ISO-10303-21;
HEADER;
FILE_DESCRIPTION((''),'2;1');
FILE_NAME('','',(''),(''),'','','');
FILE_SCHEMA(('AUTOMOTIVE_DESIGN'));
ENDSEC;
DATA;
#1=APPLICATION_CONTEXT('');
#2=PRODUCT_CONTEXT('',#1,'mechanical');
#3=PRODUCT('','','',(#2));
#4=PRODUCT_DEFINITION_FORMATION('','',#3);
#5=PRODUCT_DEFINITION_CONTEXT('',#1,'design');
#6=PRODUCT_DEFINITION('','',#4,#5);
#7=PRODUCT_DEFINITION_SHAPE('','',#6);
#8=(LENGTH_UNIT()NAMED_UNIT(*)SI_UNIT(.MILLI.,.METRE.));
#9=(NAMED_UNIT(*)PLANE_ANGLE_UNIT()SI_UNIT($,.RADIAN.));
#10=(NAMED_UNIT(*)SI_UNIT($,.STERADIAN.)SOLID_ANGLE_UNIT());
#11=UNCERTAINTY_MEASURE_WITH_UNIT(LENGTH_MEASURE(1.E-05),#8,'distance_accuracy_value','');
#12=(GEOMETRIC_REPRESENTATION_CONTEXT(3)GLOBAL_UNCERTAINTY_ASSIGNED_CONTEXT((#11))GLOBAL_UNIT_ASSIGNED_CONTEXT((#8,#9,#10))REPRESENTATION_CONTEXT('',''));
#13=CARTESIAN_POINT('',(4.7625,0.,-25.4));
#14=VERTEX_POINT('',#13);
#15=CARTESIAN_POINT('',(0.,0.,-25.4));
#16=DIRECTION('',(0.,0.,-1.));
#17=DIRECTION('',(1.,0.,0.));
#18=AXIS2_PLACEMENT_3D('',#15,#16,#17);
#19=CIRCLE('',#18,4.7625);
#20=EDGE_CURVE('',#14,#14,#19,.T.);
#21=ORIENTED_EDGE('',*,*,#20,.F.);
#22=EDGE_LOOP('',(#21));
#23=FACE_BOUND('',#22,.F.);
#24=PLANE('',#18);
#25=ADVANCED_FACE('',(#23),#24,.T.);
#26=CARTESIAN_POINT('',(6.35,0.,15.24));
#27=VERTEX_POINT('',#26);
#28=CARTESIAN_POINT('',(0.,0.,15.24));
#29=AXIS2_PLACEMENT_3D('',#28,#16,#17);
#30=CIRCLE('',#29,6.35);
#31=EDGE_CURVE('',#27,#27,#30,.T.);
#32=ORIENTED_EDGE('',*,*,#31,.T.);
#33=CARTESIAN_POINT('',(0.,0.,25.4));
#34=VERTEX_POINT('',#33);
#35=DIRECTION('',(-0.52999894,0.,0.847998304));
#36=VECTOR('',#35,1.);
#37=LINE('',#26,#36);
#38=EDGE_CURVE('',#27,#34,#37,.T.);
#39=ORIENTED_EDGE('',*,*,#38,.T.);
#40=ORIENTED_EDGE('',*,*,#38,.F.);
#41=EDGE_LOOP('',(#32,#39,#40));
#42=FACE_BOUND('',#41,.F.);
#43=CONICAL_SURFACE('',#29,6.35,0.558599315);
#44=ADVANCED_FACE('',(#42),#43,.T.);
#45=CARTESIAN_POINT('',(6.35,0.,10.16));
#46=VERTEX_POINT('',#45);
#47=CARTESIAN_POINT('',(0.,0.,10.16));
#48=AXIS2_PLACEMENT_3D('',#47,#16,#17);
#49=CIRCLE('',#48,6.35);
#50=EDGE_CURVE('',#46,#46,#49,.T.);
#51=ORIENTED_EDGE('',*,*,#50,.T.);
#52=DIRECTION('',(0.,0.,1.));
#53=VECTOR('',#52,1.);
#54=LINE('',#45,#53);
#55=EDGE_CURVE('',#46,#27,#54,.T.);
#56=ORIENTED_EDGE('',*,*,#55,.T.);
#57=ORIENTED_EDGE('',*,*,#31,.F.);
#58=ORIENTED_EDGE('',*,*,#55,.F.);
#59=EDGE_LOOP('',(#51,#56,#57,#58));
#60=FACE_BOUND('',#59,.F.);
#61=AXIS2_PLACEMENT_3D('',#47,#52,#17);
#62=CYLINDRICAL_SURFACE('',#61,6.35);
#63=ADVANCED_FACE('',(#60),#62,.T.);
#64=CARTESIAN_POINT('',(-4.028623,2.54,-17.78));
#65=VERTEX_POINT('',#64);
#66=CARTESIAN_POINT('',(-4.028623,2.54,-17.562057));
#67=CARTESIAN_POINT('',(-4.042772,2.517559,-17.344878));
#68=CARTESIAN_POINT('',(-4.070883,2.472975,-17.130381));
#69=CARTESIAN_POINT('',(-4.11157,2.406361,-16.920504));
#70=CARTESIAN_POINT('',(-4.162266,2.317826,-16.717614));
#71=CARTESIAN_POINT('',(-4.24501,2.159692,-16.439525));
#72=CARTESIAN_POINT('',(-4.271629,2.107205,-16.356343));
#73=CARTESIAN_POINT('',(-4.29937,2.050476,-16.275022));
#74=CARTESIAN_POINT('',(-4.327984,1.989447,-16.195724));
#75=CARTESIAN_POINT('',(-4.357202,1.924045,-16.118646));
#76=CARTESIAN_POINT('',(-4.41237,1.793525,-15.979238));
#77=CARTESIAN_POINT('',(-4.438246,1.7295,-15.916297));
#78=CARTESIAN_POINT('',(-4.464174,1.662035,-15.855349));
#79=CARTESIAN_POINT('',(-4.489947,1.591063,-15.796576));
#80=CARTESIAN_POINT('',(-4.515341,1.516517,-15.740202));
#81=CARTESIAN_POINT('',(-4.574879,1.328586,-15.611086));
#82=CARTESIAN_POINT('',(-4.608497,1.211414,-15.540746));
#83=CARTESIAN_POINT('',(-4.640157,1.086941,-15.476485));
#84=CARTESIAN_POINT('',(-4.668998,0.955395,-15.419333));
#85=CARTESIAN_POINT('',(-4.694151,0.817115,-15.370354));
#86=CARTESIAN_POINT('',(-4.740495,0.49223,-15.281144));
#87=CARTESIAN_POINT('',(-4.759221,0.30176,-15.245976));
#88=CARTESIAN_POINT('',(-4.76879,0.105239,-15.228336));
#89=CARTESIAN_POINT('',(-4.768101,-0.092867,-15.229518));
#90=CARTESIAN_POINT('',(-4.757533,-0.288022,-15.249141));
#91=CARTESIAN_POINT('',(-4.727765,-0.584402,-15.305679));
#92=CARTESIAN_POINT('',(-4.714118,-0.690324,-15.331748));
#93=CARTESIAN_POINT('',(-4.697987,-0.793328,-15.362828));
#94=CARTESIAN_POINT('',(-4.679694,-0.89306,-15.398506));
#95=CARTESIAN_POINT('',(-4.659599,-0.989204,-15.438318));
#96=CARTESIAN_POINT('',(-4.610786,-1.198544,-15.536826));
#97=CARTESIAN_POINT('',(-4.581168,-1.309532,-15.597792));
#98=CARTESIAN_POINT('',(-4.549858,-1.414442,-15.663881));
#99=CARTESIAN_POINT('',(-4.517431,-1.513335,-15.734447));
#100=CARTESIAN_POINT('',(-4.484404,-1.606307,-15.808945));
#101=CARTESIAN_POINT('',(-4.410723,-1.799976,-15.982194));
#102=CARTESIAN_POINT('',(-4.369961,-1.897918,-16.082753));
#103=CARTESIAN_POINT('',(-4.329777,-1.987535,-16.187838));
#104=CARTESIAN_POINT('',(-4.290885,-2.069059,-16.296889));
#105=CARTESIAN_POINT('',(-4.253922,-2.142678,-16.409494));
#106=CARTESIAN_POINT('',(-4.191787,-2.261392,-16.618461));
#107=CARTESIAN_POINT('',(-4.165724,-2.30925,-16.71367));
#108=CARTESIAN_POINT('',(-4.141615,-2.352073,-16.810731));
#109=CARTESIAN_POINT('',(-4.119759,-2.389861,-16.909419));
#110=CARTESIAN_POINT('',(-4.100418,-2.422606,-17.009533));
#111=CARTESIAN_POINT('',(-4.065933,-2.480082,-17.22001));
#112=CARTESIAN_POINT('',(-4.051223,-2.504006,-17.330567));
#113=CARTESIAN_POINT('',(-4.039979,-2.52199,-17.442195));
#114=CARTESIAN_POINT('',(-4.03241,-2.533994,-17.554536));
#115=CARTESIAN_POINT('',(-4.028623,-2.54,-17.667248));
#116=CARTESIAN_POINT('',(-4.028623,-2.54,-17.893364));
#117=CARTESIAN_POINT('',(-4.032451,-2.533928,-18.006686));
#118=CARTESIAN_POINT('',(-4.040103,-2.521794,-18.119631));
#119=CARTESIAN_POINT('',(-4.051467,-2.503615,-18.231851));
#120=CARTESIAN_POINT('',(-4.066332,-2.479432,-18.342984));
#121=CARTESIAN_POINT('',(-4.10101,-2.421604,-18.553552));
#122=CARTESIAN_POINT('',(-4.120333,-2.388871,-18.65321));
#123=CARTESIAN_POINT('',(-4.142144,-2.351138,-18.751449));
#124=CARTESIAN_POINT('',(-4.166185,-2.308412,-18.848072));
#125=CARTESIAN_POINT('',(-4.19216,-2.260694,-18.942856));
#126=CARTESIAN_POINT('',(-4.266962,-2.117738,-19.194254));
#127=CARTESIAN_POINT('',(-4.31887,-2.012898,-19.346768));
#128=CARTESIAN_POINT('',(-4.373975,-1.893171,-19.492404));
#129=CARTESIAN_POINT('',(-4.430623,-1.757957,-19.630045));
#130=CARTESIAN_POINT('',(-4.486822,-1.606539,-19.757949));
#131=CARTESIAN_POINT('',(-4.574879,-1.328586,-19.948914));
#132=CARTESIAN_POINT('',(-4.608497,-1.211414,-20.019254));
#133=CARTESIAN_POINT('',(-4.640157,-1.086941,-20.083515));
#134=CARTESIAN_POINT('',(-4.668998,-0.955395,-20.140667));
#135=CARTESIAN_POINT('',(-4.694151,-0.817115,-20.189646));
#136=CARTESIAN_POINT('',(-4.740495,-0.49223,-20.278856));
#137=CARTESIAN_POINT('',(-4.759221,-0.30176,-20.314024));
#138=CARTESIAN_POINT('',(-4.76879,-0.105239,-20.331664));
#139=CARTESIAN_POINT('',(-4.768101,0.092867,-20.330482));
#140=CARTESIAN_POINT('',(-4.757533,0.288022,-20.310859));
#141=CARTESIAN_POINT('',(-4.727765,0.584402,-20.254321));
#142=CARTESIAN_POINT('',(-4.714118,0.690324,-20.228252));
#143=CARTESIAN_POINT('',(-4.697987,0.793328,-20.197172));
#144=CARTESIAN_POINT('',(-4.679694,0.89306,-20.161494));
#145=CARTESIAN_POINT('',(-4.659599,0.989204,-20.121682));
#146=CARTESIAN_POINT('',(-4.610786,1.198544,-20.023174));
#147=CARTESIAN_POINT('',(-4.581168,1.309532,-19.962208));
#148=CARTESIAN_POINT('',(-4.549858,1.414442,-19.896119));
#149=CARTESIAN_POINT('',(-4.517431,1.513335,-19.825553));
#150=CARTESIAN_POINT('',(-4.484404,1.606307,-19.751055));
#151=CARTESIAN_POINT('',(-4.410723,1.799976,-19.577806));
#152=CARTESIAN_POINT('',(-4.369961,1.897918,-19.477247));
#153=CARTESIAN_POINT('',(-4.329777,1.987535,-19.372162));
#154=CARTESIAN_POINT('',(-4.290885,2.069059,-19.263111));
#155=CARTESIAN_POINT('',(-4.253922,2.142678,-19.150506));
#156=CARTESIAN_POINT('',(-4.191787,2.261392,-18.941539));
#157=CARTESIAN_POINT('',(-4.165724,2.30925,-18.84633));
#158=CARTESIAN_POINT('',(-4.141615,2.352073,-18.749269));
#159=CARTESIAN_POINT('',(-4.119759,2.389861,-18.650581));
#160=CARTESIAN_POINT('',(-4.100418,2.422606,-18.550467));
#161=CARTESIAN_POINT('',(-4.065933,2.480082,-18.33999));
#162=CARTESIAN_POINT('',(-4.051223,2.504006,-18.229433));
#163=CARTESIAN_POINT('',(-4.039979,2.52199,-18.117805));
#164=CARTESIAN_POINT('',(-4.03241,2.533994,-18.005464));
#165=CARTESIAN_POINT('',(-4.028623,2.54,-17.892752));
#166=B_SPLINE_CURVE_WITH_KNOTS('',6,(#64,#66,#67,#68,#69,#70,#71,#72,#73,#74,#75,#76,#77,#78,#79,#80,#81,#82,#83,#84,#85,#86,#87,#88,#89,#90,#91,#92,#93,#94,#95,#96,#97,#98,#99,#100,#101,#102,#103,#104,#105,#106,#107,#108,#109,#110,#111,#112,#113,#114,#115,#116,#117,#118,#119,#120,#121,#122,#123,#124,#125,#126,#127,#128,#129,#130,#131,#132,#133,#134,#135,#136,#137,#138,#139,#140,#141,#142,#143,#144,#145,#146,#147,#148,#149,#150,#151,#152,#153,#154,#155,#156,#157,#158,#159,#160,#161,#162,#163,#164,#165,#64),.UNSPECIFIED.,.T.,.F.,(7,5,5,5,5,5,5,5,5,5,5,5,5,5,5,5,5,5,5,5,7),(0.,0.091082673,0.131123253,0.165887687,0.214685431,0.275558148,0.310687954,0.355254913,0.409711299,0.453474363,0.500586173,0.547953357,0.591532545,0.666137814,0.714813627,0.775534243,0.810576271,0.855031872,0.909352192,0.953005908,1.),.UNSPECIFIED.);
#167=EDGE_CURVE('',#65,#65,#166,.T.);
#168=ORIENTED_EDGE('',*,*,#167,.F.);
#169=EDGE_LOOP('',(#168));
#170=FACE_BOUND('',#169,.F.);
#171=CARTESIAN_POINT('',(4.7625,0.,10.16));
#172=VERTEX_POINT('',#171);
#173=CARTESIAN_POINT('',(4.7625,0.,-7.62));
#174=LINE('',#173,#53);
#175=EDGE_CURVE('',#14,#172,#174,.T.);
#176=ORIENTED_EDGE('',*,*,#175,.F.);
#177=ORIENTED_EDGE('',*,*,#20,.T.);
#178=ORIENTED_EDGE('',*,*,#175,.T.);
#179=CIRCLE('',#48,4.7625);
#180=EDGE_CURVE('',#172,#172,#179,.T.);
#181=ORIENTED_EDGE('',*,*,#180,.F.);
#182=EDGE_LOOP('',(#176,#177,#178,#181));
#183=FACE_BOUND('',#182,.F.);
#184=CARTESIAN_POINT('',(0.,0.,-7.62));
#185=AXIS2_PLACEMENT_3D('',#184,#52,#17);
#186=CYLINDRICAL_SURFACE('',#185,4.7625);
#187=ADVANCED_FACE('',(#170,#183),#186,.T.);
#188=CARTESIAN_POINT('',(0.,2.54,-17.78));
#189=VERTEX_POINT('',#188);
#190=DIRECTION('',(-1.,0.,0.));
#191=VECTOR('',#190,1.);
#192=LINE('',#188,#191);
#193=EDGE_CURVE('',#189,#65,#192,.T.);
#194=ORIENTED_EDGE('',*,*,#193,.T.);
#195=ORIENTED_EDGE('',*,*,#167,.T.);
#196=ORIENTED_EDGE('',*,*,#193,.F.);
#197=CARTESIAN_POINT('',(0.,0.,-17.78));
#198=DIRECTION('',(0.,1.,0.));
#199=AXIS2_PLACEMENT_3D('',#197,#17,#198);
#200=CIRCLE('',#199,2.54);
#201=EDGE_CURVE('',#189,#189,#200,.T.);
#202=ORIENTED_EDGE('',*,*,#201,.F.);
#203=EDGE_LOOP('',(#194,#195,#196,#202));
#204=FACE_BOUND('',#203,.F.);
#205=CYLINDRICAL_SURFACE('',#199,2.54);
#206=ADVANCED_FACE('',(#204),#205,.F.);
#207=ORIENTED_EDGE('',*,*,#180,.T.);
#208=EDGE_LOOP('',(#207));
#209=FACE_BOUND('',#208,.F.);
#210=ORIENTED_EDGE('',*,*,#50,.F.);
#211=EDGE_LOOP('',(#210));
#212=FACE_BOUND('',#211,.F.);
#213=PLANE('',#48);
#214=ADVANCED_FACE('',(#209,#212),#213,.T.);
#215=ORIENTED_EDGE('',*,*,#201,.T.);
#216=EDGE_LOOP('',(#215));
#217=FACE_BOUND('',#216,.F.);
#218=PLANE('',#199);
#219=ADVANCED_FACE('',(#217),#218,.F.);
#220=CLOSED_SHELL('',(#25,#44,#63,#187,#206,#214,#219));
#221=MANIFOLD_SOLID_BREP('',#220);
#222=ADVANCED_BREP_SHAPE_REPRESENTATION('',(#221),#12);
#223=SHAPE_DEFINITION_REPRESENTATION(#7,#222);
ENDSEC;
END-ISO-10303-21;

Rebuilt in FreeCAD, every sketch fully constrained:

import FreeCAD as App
import Part
import Sketcher
from FreeCAD import Vector
Q = App.Units.Quantity

doc = App.newDocument("Part")
body = doc.addObject("PartDesign::Body", "Body")

# Sketch on XZ plane
sketch1 = body.newObject("Sketcher::SketchObject", "Sketch")
sketch1.AttachmentSupport = (doc.getObject("XZ_Plane"), [""])
sketch1.MapMode = "FlatFace"
sketch1.addGeometry(Part.LineSegment(Vector(0, 25.4, 0), Vector(0, -25.4, 0)), False)
sketch1.addGeometry(Part.LineSegment(Vector(0, -25.4, 0), Vector(4.8, -25.4, 0)), False)
sketch1.addGeometry(Part.LineSegment(Vector(4.8, -25.4, 0), Vector(4.8, 10.2, 0)), False)
sketch1.addGeometry(Part.LineSegment(Vector(4.8, 10.2, 0), Vector(6.3, 10.2, 0)), False)
sketch1.addGeometry(Part.LineSegment(Vector(6.3, 10.2, 0), Vector(6.3, 15.2, 0)), False)
sketch1.addGeometry(Part.LineSegment(Vector(6.3, 15.2, 0), Vector(0, 25.4, 0)), False)
sketch1.addConstraint(Sketcher.Constraint("Coincident", 0, 2, 1, 1))
sketch1.addConstraint(Sketcher.Constraint("Coincident", 1, 2, 2, 1))
sketch1.addConstraint(Sketcher.Constraint("Coincident", 2, 2, 3, 1))
sketch1.addConstraint(Sketcher.Constraint("Coincident", 3, 2, 4, 1))
sketch1.addConstraint(Sketcher.Constraint("Coincident", 4, 2, 5, 1))
sketch1.addConstraint(Sketcher.Constraint("Coincident", 5, 2, 0, 1))
sketch1.addConstraint(Sketcher.Constraint("Vertical", 0))
sketch1.addConstraint(Sketcher.Constraint("Horizontal", 1))
sketch1.addConstraint(Sketcher.Constraint("Vertical", 2))
sketch1.addConstraint(Sketcher.Constraint("Horizontal", 3))
sketch1.addConstraint(Sketcher.Constraint("Vertical", 4))
sketch1.addConstraint(Sketcher.Constraint("Symmetric", 0, 2, 5, 2, -1, 1))
sketch1.addConstraint(Sketcher.Constraint("DistanceY", 0, 2, 0, 1, Q("2 in")))
sketch1.addConstraint(Sketcher.Constraint("DistanceY", 2, 1, 2, 2, Q("1.4 in")))
sketch1.addConstraint(Sketcher.Constraint("DistanceY", 4, 1, 4, 2, Q("0.2 in")))
sketch1.addConstraint(Sketcher.Constraint("DistanceX", 1, 1, 1, 2, Q("0.1875 in")))
sketch1.addConstraint(Sketcher.Constraint("DistanceX", 3, 1, 3, 2, Q("0.0625 in")))
revolution = body.newObject("PartDesign::Revolution", "Revolution")
revolution.Profile = sketch1
revolution.ReferenceAxis = (sketch1, ["V_Axis"])
revolution.Angle = 360

# Sketch on YZ plane
sketch2 = body.newObject("Sketcher::SketchObject", "Sketch001")
sketch2.AttachmentSupport = (doc.getObject("YZ_Plane"), [""])
sketch2.MapMode = "FlatFace"
sketch2.addGeometry(Part.Circle(Vector(0, -17.8, 0), Vector(0, 0, 1), 2.5), False)
sketch2.addConstraint(Sketcher.Constraint("PointOnObject", 0, 3, -2))
sketch2.addConstraint(Sketcher.Constraint("Diameter", 0, Q("0.2 in")))
sketch2.addConstraint(Sketcher.Constraint("DistanceY", 0, 3, -1, 1, Q("0.7 in")))
pocket1 = body.newObject("PartDesign::Pocket", "Pocket")
pocket1.Profile = sketch2
pocket1.Length = Q("0.3 in")

doc.recompute()
